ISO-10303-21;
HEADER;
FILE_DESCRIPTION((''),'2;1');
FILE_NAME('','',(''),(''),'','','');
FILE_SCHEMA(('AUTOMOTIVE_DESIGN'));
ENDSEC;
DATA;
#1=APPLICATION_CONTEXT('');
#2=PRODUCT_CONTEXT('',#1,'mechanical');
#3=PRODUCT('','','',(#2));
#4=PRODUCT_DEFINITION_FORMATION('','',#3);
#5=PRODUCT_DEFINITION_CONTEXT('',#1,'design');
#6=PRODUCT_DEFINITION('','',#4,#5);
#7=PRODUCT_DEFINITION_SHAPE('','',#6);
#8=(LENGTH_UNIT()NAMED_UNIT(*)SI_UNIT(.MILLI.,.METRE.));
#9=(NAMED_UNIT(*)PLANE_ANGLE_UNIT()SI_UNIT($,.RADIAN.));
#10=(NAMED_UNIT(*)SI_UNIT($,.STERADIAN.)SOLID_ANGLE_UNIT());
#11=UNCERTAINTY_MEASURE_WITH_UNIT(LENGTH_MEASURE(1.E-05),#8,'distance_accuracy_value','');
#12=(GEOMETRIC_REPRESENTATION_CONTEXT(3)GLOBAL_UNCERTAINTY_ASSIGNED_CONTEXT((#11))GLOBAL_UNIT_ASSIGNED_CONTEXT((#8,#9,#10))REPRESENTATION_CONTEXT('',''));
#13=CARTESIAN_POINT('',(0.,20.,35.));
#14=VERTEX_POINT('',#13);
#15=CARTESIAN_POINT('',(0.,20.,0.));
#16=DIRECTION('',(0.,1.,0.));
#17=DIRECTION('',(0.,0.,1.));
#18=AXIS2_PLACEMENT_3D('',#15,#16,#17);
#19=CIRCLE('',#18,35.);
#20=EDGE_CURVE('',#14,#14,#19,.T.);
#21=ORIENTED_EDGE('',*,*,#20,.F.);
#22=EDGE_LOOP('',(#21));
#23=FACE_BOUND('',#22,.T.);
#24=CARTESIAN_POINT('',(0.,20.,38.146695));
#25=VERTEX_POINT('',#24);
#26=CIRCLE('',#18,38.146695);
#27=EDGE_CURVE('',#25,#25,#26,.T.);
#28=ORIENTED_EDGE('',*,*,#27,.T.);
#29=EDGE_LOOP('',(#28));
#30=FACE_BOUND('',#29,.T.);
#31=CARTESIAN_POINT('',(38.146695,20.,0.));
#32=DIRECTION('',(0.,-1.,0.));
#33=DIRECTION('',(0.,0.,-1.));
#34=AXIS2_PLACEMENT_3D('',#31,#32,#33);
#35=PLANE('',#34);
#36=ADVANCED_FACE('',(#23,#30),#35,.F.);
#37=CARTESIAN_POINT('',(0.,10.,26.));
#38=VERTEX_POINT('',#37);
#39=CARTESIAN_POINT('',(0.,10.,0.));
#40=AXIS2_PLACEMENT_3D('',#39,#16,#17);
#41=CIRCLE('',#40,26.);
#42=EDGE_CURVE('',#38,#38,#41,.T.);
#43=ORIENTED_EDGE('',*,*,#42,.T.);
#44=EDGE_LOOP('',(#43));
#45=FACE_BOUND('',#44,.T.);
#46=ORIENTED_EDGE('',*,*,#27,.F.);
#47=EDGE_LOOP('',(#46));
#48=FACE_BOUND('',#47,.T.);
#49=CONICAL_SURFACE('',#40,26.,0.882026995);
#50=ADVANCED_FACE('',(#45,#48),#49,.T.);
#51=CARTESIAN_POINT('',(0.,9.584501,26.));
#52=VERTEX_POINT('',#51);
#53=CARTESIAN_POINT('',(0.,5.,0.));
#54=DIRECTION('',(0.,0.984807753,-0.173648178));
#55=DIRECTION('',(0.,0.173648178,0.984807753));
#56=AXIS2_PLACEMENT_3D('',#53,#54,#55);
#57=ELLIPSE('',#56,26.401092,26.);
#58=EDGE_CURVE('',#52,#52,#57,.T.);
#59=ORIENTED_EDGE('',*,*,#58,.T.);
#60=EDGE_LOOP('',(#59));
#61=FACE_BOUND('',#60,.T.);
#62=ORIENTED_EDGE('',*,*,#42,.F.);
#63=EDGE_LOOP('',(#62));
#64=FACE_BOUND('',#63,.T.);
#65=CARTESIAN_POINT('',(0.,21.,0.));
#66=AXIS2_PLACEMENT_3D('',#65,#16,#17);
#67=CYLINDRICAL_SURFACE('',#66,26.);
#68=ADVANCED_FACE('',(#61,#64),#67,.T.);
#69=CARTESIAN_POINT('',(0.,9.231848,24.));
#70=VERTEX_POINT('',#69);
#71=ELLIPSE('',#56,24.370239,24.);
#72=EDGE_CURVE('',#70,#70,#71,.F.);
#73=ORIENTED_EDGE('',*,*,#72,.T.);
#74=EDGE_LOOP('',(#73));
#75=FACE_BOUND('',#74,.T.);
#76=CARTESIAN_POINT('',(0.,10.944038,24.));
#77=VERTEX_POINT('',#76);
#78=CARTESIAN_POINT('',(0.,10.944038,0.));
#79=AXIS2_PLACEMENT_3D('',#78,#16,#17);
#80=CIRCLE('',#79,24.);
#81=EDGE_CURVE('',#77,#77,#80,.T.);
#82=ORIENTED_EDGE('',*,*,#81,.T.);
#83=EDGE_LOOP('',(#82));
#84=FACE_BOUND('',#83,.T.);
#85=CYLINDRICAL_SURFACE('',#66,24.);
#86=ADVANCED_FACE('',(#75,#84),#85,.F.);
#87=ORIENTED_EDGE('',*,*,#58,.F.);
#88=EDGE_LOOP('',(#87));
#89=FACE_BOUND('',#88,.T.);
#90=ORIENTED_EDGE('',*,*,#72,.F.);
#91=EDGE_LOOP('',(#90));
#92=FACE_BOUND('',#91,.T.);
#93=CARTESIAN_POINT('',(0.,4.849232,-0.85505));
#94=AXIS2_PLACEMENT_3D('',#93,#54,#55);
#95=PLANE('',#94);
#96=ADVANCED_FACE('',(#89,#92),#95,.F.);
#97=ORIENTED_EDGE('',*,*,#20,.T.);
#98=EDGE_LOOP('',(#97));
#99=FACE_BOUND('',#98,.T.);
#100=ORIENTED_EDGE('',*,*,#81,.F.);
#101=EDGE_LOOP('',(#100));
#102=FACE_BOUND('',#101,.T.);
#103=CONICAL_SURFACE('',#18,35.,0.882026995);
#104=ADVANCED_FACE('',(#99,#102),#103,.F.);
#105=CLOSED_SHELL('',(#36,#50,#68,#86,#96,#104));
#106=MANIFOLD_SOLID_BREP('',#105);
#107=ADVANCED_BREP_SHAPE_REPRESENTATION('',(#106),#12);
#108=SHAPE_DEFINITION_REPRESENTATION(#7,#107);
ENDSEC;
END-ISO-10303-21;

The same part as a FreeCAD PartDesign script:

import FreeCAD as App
import Part
import Sketcher

V = App.Vector
Q = App.Units.Quantity


def add_polygon(sketch, points):
    """Adds a closed chain of lines whose ends are joined by coincident constraints."""
    first, n = sketch.GeometryCount, len(points)
    for a, b in zip(points, points[1:] + points[:1]):
        sketch.addGeometry(Part.LineSegment(App.Vector(*a, 0), App.Vector(*b, 0)), False)
    for i in range(n):
        sketch.addConstraint(Sketcher.Constraint("Coincident", first + i, 2, first + (i + 1) % n, 1))

doc = App.newDocument("Part")
body = doc.addObject("PartDesign::Body", "Body")

# Sketch on XY plane
sketch1 = doc.addObject("Sketcher::SketchObject", "Sketch")
body.addObject(sketch1)
sketch1.AttachmentSupport = (doc.XY_Plane, [""])
sketch1.MapMode = "FlatFace"
add_polygon(sketch1, [(26, 0), (26, 10), (38.1, 20), (35, 20), (24, 10.9), (24, 0)])  # lines 0-5
sketch1.addConstraint(Sketcher.Constraint("Vertical", 0))
sketch1.addConstraint(Sketcher.Constraint("Horizontal", 2))
sketch1.addConstraint(Sketcher.Constraint("Vertical", 4))
sketch1.addConstraint(Sketcher.Constraint("Horizontal", 5))
sketch1.addConstraint(Sketcher.Constraint("PointOnObject", 4, 2, -1))
sketch1.addConstraint(Sketcher.Constraint("Parallel", 1, 3))
sketch1.addConstraint(Sketcher.Constraint("DistanceX", 5, 1, 5, 2, Q("2 mm")))
sketch1.addConstraint(Sketcher.Constraint("DistanceY", 0, 1, 0, 2, Q("10 mm")))
sketch1.addConstraint(Sketcher.Constraint("DistanceX", -1, 1, 0, 2, Q("26 mm")))
sketch1.addConstraint(Sketcher.Constraint("DistanceY", -1, 1, 1, 2, Q("20 mm")))
sketch1.addConstraint(Sketcher.Constraint("DistanceX", -1, 1, 2, 2, Q("35 mm")))
sketch1.addConstraint(Sketcher.Constraint("DistanceY", 4, 2, 4, 1, Q("10.944038 mm")))
revolution = doc.addObject("PartDesign::Revolution", "Revolution")
body.addObject(revolution)
revolution.Profile = sketch1
revolution.ReferenceAxis = (sketch1, ["V_Axis"])
revolution.Angle = 360

# Sketch on an angled plane
sketch2 = doc.addObject("Sketcher::SketchObject", "Sketch001")
body.addObject(sketch2)
sketch2.Placement = App.Placement(V(0, 4.849232, -0.85505), App.Rotation(V(-1, 0, 0), V(0, 0.173648178, 0.984807753), V(0, 0.984807753, -0.173648178), "ZXY"))
sketch2.addGeometry(Part.Circle(V(0, 0, 0), V(0, 0, 1), 27), False)
sketch2.addConstraint(Sketcher.Constraint("Coincident", 0, 3, -1, 1))
sketch2.addConstraint(Sketcher.Constraint("Diameter", 0, Q("54.682967 mm")))
pocket1 = doc.addObject("PartDesign::Pocket", "Pocket")
body.addObject(pocket1)
pocket1.Profile = sketch2
pocket1.Type = "ThroughAll"

doc.recompute()
